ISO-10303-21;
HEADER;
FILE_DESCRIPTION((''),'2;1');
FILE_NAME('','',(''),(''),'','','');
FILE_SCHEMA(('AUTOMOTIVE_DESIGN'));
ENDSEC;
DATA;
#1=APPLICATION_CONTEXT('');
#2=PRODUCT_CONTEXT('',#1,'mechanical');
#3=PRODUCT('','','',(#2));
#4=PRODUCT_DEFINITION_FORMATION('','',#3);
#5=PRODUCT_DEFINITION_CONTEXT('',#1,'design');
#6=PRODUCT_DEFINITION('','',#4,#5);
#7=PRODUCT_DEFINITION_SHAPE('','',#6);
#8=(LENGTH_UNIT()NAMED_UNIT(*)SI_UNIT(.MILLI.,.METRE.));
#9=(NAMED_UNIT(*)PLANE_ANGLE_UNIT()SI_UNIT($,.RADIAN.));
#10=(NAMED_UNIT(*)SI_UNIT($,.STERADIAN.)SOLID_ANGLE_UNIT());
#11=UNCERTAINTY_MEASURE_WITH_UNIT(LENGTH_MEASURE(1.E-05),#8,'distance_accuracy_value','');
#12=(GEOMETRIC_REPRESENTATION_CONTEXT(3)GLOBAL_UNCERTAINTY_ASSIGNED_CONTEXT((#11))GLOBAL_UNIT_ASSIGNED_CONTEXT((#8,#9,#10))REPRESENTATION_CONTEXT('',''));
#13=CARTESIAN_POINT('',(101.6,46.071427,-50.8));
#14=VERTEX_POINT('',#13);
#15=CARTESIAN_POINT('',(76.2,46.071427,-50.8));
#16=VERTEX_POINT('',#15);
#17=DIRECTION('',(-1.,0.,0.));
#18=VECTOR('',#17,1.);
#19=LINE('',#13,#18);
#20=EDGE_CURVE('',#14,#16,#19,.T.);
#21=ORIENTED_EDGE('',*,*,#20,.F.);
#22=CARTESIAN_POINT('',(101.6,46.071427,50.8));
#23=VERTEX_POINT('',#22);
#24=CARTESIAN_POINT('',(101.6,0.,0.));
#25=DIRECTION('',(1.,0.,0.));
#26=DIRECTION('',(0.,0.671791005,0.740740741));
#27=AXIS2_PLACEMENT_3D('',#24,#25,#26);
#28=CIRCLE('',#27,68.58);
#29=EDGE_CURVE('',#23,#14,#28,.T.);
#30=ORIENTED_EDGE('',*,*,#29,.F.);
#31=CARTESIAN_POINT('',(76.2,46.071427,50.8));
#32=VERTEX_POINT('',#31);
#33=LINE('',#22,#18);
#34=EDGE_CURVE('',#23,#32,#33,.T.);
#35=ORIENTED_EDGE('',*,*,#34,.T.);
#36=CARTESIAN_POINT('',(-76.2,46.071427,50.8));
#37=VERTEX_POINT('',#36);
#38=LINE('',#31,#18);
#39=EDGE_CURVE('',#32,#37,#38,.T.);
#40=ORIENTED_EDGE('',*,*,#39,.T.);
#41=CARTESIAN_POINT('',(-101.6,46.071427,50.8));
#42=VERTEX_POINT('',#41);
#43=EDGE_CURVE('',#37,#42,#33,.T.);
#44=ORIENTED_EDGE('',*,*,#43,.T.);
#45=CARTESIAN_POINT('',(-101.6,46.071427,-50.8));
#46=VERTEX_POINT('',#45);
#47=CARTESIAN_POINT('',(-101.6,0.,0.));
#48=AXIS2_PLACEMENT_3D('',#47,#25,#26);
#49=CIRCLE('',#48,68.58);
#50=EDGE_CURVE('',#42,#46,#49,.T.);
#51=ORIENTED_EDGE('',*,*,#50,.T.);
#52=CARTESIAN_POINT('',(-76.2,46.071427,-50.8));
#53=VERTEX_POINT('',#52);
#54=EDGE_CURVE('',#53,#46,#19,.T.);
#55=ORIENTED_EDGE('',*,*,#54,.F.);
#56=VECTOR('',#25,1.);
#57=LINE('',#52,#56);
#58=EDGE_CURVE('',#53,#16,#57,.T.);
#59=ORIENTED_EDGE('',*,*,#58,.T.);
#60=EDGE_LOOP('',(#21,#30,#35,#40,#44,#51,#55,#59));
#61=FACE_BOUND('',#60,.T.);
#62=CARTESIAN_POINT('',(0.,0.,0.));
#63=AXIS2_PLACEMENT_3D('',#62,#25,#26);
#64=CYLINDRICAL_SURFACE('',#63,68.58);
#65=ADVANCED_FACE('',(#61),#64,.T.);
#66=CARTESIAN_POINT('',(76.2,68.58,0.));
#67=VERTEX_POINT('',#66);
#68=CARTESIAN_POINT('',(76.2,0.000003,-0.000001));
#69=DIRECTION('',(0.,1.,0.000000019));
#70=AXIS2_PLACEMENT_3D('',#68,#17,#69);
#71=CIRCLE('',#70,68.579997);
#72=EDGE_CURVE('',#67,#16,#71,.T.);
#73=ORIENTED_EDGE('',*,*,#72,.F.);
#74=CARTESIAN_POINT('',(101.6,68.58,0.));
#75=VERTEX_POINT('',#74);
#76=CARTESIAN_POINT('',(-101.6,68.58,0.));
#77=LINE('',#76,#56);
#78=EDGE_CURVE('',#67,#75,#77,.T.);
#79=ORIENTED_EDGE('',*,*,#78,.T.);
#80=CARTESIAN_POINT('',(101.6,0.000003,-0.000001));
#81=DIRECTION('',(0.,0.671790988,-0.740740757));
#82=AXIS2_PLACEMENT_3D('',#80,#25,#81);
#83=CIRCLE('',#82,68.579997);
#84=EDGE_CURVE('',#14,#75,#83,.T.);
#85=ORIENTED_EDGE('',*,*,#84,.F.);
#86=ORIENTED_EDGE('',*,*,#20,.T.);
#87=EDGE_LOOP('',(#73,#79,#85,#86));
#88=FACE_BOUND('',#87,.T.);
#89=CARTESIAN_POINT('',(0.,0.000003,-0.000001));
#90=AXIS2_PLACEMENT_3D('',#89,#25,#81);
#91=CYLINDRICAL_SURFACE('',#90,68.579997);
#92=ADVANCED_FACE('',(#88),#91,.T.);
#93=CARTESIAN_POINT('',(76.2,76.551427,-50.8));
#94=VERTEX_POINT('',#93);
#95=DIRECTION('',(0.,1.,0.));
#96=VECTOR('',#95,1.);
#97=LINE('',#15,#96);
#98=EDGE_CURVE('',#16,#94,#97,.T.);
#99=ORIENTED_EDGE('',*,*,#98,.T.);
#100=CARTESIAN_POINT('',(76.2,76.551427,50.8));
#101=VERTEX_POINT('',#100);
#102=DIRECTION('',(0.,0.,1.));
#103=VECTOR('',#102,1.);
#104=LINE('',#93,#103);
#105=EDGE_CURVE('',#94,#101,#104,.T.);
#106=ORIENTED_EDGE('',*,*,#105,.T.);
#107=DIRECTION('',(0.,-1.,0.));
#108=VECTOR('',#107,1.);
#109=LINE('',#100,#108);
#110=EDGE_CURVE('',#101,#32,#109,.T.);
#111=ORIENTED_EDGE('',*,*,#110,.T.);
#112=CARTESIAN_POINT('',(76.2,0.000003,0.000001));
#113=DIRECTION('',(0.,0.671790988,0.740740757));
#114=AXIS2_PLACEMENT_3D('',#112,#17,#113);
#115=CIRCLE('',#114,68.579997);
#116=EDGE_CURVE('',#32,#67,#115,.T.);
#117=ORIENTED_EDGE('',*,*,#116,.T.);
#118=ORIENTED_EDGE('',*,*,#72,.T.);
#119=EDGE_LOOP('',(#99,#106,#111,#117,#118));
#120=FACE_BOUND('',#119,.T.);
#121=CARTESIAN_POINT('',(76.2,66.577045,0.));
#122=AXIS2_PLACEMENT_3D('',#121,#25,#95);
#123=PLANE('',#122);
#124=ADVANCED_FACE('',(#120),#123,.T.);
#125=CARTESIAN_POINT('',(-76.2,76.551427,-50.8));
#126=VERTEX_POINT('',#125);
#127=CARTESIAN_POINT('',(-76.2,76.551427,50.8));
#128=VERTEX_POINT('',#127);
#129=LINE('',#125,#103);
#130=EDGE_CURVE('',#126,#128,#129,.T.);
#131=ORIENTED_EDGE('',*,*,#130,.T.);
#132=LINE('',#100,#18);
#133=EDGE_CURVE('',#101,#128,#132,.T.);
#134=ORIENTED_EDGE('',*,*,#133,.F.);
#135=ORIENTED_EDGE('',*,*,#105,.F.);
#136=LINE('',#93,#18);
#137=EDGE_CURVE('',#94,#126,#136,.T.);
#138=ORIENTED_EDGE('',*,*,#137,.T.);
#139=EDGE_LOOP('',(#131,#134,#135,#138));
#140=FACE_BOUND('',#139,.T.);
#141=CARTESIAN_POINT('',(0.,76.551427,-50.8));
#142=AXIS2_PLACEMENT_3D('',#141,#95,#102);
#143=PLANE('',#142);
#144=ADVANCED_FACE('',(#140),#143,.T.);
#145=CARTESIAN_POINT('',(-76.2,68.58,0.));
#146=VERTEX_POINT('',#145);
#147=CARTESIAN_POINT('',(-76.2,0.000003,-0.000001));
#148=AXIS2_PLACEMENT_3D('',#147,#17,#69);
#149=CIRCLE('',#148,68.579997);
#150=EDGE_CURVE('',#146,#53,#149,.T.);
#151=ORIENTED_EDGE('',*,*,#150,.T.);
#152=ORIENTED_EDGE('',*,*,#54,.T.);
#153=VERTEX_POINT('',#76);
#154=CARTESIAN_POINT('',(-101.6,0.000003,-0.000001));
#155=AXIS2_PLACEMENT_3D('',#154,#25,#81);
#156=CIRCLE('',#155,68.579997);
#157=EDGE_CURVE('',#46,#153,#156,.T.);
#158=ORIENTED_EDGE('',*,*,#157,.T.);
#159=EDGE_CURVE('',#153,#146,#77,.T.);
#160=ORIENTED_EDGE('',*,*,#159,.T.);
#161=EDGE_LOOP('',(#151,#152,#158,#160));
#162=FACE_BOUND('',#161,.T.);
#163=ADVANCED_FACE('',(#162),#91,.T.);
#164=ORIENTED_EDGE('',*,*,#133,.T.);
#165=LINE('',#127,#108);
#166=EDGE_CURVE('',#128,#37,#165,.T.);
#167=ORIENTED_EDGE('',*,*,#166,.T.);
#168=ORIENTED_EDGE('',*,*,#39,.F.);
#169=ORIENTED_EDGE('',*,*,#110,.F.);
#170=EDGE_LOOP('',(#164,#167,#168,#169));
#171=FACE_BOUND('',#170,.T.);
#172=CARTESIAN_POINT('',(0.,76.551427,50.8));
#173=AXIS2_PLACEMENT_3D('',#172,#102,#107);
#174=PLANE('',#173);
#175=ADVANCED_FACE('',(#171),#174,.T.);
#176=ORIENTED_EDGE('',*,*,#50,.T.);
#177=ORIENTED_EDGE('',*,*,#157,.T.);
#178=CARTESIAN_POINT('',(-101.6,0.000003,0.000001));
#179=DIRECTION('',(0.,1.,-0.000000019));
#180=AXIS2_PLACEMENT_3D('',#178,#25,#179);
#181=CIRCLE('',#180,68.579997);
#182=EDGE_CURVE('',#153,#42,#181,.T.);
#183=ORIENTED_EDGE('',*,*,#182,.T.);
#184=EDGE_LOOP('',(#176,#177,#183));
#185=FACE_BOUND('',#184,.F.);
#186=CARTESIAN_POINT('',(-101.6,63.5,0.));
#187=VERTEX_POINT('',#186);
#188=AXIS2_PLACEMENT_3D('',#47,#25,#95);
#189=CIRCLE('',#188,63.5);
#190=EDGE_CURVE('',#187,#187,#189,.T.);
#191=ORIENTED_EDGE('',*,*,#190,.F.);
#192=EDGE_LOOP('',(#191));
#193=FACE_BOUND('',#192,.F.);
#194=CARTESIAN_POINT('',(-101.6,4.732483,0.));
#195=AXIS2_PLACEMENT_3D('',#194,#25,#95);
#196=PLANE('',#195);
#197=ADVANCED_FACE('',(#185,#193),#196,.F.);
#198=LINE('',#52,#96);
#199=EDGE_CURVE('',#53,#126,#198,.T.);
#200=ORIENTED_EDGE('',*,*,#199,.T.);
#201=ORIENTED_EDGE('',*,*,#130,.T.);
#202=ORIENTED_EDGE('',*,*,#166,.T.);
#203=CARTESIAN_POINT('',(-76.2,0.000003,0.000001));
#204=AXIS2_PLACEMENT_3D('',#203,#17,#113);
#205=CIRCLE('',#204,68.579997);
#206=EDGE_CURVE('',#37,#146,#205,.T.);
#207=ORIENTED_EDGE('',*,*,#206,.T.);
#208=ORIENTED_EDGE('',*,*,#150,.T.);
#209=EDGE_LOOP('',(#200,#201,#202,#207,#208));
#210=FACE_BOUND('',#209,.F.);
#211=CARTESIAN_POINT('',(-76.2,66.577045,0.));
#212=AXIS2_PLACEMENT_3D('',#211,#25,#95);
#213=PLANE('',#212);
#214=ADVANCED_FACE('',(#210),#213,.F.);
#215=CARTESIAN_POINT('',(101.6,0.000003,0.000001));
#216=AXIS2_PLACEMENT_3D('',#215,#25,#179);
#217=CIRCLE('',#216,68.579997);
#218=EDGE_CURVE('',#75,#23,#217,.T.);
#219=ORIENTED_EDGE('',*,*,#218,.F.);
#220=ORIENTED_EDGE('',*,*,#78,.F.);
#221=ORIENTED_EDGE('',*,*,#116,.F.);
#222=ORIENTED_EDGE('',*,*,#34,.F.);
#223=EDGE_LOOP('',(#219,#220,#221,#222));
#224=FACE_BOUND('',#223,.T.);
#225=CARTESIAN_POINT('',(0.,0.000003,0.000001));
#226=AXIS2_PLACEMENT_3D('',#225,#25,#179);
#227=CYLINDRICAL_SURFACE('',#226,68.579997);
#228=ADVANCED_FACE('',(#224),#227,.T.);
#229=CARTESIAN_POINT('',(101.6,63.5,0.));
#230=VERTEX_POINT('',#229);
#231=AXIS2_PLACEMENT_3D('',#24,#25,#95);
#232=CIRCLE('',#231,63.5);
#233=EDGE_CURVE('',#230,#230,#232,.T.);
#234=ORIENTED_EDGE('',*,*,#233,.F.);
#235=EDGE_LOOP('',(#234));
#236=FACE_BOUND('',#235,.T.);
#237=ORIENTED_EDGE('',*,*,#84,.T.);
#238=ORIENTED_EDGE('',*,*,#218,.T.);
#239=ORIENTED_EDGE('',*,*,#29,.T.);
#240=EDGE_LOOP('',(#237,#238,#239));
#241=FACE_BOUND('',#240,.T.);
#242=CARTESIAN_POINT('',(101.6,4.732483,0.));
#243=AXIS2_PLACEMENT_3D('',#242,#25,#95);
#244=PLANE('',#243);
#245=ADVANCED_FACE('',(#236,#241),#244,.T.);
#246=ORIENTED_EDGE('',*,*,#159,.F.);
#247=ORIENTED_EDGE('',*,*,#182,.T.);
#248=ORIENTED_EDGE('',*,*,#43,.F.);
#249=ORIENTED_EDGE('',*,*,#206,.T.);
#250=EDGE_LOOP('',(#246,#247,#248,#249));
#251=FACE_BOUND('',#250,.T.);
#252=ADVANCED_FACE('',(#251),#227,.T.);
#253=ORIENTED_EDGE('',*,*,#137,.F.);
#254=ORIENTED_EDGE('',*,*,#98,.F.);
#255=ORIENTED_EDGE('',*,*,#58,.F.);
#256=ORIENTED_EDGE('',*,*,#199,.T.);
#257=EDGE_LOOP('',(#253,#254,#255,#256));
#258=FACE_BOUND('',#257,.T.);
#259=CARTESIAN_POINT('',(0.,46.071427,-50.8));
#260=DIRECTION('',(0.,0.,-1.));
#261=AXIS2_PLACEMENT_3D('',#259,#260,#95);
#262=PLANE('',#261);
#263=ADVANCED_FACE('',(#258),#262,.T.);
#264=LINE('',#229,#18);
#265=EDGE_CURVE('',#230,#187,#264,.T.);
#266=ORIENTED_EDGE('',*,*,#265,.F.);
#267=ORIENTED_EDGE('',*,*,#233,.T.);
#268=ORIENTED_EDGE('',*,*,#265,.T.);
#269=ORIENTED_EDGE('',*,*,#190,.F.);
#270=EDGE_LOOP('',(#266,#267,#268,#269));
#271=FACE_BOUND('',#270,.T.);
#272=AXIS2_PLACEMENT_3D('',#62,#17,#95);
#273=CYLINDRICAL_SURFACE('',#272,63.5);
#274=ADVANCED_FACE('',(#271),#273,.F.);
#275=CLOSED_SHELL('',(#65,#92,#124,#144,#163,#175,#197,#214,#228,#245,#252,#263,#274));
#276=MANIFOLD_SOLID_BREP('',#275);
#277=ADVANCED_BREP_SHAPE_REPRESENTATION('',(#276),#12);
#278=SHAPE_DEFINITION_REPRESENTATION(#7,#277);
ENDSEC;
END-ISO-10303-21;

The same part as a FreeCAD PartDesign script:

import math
import FreeCAD as App
import Part
import Sketcher

V = App.Vector
Q = App.Units.Quantity

doc = App.newDocument("Part")
body = doc.addObject("PartDesign::Body", "Body")

sketch1 = body.newObject("Sketcher::SketchObject", "Sketch")
sketch1.AttachmentSupport = (doc.getObject("YZ_Plane"), [""])
sketch1.MapMode = "FlatFace"
sketch1.addGeometry([
    Part.ArcOfCircle(Part.Circle(V(0, 0, 0), V(0, 0, 1), 69), math.radians(-48), math.radians(0)),
    Part.ArcOfCircle(Part.Circle(V(0, 0, 0), V(0, 0, 1), 69), math.radians(0), math.radians(48)),
    Part.ArcOfCircle(Part.Circle(V(0, 0, 0), V(0, 0, 1), 69), math.radians(48), math.radians(312)),
    Part.Circle(V(0, 0, 0), V(0, 0, 1), 64),
], False)
sketch1.addConstraint([
    Sketcher.Constraint("Tangent", 0, 2, 1, 1),
    Sketcher.Constraint("Tangent", 1, 2, 2, 1),
    Sketcher.Constraint("Tangent", 2, 2, 0, 1),
    Sketcher.Constraint("Coincident", 0, 3, -1, 1),
    Sketcher.Constraint("Coincident", 3, 3, -1, 1),
    Sketcher.Constraint("PointOnObject", 0, 2, -1),
    Sketcher.Constraint("Vertical", 1, 2, 2, 2),
    Sketcher.Constraint("Diameter", 3, Q("5 in")),
    Sketcher.Constraint("Radius", 0, Q("2.6999999 in")),
    Sketcher.Constraint("DistanceY", -1, 1, 1, 2, Q("2 in")),
])
pad1 = body.newObject("PartDesign::Pad", "Pad")
pad1.Profile = sketch1
pad1.Length = Q("8 in")
pad1.Midplane = True

sketch2 = body.newObject("Sketcher::SketchObject", "Sketch001")
sketch2.AttachmentSupport = (doc.getObject("YZ_Plane"), [""])
sketch2.MapMode = "FlatFace"
sketch2.addGeometry([
    Part.ArcOfCircle(Part.Circle(V(0, 0, 0), V(0, 0, 1), 69), math.radians(0), math.radians(48)),
    Part.ArcOfCircle(Part.Circle(V(0, 0, 0), V(0, 0, 1), 69), math.radians(-48), math.radians(0)),
    Part.LineSegment(V(46, -51, 0), V(77, -51, 0)),
    Part.LineSegment(V(77, -51, 0), V(77, 51, 0)),
    Part.LineSegment(V(77, 51, 0), V(46, 51, 0)),
], False)
sketch2.addConstraint([
    Sketcher.Constraint("Tangent", 0, 1, 1, 2),
    Sketcher.Constraint("Coincident", 1, 1, 2, 1),
    Sketcher.Constraint("Coincident", 2, 2, 3, 1),
    Sketcher.Constraint("Coincident", 3, 2, 4, 1),
    Sketcher.Constraint("Coincident", 4, 2, 0, 2),
    Sketcher.Constraint("Horizontal", 2),
    Sketcher.Constraint("Vertical", 3),
    Sketcher.Constraint("Horizontal", 4),
    Sketcher.Constraint("Coincident", 0, 3, -1, 1),
    Sketcher.Constraint("Equal", 0, 1),
    Sketcher.Constraint("PointOnObject", 0, 1, -1),
    Sketcher.Constraint("Vertical", 1, 1, 4, 2),
    Sketcher.Constraint("Radius", 0, Q("2.6999999 in")),
    Sketcher.Constraint("DistanceY", 3, 1, 3, 2, Q("4 in")),
    Sketcher.Constraint("DistanceX", 2, 1, 2, 2, Q("1.2 in")),
])
pad2 = body.newObject("PartDesign::Pad", "Pad001")
pad2.Profile = sketch2
pad2.Length = Q("6 in")
pad2.Midplane = True

doc.recompute()
